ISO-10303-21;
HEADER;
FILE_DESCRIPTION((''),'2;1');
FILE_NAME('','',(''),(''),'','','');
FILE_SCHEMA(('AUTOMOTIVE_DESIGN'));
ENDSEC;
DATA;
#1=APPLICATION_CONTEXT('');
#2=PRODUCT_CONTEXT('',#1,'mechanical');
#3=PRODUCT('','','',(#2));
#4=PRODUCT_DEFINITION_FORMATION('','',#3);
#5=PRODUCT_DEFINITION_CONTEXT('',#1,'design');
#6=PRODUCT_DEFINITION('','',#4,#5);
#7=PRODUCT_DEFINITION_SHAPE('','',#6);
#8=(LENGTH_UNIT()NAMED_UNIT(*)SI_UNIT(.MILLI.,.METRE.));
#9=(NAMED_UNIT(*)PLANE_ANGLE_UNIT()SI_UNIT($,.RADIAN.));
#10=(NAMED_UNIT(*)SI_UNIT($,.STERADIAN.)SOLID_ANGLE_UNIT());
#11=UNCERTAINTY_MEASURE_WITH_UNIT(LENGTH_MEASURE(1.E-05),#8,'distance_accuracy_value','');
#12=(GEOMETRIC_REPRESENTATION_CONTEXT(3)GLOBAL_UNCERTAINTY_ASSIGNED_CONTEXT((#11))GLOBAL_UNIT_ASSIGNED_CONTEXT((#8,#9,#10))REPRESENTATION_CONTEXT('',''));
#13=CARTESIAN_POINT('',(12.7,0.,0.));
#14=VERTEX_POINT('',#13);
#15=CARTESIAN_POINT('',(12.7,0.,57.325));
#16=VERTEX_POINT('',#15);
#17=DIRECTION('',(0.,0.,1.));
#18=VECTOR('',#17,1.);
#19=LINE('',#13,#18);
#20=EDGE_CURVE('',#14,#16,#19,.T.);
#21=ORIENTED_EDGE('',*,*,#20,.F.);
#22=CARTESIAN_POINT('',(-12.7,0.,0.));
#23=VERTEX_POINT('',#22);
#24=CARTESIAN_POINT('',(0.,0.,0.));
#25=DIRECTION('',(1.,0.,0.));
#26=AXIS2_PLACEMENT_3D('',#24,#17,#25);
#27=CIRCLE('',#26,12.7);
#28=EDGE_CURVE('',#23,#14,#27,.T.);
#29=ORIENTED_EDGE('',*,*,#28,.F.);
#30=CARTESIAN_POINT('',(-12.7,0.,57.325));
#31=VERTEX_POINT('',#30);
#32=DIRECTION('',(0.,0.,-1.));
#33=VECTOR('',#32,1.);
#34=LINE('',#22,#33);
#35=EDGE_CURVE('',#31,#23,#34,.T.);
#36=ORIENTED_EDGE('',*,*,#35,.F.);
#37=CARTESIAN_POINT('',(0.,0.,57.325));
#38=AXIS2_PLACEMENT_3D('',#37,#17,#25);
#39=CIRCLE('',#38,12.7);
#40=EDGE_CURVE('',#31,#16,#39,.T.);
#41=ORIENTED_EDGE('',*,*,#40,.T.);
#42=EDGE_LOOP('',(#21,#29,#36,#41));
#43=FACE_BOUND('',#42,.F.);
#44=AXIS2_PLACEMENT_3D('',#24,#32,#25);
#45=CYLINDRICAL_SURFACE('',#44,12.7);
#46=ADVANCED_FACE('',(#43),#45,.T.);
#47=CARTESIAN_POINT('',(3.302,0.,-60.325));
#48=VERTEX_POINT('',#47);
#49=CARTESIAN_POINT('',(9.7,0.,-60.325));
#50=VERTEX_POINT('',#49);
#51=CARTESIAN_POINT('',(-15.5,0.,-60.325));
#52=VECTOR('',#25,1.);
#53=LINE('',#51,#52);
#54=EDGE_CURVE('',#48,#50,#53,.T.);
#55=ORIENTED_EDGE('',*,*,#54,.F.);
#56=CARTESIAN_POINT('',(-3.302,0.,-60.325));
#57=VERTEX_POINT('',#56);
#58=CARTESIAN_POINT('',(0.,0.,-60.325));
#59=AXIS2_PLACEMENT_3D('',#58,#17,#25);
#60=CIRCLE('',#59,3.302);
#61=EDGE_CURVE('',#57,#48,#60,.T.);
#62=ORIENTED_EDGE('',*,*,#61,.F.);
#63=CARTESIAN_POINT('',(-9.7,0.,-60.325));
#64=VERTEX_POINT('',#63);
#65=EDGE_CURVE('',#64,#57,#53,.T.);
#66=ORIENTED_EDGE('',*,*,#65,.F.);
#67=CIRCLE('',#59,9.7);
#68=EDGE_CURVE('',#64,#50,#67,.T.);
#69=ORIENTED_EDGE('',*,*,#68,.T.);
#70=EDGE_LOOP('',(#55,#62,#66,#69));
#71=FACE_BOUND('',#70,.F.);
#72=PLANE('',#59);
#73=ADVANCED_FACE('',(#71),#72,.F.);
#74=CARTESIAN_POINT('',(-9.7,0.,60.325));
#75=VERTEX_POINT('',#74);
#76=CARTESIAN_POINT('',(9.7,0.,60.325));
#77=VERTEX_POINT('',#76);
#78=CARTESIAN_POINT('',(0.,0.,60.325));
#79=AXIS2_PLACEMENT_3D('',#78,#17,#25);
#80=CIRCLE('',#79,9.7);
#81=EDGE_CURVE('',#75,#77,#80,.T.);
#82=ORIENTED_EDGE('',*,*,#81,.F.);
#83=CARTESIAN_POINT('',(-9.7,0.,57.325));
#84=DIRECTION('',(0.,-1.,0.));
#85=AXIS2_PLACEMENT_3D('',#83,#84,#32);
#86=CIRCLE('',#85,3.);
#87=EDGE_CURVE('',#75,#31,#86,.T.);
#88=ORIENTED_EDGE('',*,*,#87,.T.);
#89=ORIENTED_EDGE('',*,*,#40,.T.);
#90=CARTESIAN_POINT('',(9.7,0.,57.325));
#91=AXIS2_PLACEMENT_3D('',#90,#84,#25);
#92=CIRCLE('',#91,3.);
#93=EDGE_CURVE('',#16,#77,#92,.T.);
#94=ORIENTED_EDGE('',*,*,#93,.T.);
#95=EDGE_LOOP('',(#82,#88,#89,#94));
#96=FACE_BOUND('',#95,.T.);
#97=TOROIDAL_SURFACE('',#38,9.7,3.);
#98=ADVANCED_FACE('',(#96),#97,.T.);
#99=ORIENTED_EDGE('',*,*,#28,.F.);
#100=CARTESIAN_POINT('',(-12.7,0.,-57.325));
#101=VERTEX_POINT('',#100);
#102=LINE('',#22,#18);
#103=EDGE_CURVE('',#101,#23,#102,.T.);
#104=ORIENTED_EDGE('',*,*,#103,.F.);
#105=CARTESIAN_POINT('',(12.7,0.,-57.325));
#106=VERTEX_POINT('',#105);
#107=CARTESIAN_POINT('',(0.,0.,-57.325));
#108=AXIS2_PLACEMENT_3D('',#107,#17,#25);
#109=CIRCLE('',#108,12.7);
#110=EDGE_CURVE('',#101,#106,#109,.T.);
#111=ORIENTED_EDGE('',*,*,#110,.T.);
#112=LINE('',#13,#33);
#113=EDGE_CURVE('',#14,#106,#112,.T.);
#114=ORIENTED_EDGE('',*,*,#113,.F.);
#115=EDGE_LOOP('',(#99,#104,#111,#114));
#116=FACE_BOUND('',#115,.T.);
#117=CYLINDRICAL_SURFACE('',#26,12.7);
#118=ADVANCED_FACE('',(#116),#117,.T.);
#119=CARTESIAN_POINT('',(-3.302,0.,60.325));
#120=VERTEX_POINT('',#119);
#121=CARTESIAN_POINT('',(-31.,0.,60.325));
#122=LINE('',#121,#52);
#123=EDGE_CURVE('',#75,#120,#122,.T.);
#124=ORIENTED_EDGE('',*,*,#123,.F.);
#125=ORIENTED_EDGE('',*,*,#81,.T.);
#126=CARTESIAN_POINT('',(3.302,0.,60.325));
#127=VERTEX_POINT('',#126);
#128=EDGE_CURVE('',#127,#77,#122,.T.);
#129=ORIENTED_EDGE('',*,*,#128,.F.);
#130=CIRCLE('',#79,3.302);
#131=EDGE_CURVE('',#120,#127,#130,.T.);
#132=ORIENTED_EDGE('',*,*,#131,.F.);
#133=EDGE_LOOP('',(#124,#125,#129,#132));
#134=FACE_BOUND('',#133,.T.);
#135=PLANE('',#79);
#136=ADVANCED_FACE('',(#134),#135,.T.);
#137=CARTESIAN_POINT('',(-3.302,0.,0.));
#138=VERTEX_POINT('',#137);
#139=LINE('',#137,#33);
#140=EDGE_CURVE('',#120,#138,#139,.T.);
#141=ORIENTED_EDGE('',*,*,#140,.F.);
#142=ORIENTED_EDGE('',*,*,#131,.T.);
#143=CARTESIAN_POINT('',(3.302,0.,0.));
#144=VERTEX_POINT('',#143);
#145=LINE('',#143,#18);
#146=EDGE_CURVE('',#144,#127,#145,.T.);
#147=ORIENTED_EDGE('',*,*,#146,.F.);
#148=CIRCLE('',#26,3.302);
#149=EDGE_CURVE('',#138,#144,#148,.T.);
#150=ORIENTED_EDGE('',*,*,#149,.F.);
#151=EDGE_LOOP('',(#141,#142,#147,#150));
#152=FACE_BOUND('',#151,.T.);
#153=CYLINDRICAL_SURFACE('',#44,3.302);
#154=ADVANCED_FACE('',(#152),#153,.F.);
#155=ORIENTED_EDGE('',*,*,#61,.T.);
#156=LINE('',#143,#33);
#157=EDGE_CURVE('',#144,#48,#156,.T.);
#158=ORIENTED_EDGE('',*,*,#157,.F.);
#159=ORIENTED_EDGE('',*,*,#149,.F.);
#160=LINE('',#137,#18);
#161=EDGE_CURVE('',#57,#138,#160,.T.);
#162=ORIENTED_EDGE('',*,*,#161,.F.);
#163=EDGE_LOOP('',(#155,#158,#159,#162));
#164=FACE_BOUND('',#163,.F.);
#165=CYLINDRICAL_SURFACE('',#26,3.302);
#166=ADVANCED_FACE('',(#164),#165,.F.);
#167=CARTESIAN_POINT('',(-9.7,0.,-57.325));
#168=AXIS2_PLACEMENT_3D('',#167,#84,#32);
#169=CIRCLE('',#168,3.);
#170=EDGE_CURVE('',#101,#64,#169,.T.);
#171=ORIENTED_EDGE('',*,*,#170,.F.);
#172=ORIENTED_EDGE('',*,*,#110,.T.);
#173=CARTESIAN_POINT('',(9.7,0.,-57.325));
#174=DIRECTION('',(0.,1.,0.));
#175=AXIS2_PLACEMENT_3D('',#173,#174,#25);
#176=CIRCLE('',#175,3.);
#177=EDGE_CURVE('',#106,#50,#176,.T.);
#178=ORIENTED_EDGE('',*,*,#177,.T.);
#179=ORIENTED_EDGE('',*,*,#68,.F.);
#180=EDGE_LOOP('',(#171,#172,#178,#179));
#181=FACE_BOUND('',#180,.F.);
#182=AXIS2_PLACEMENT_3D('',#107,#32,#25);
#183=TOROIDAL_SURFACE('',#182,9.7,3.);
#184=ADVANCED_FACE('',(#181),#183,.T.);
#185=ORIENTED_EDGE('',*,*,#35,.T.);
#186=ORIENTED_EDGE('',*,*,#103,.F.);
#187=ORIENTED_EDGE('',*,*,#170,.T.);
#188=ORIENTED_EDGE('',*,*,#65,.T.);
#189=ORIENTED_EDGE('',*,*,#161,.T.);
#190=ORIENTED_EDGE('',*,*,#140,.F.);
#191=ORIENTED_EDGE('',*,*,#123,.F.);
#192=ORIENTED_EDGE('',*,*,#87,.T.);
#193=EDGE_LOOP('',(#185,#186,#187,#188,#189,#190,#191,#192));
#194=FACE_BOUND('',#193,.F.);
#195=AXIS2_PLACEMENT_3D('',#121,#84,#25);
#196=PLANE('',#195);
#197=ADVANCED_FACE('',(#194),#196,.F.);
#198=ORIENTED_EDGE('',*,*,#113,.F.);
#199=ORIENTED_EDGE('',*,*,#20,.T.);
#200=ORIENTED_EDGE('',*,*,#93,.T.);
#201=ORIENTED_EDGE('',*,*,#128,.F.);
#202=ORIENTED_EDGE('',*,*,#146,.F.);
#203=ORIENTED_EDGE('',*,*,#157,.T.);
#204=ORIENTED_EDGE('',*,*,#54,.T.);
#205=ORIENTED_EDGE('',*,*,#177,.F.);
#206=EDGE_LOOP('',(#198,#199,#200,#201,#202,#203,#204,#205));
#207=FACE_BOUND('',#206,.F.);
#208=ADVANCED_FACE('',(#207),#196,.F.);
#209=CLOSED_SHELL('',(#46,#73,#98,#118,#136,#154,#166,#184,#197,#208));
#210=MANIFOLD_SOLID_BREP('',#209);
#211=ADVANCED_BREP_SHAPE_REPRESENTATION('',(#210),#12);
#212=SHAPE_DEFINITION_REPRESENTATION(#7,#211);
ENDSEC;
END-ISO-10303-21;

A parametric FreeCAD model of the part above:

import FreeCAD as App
import Part
import Sketcher
Q = App.Units.Quantity


def edges_at(feature, points):
    """Names of the edges that pass closest to the given points."""
    edges = feature.Shape.Edges
    near = lambda p: min(range(len(edges)), key=lambda i: edges[i].distToShape(Part.Vertex(*p))[0])
    return sorted({f"Edge{near(p) + 1}" for p in points})


def add_polygon(sketch, points):
    """Adds a closed chain of lines whose ends are joined by coincident constraints."""
    first, n = sketch.GeometryCount, len(points)
    for a, b in zip(points, points[1:] + points[:1]):
        sketch.addGeometry(Part.LineSegment(App.Vector(*a, 0), App.Vector(*b, 0)), False)
    for i in range(n):
        sketch.addConstraint(Sketcher.Constraint("Coincident", first + i, 2, first + (i + 1) % n, 1))

doc = App.newDocument("Part")
body = doc.addObject("PartDesign::Body", "Body")

# Sketch on XY plane
sketch1 = doc.addObject("Sketcher::SketchObject", "Sketch")
body.addObject(sketch1)
sketch1.AttachmentSupport = (doc.XY_Plane, [""])
sketch1.MapMode = "FlatFace"
sketch1.addGeometry(Part.Circle(App.Vector(0, 0, 0), App.Vector(0, 0, 1), 12.7), False)
sketch1.addGeometry(Part.Circle(App.Vector(0, 0, 0), App.Vector(0, 0, 1), 3.3), False)
sketch1.addConstraint(Sketcher.Constraint("Coincident", 0, 3, -1, 1))
sketch1.addConstraint(Sketcher.Constraint("Coincident", 1, 3, -1, 1))
sketch1.addConstraint(Sketcher.Constraint("Diameter", 0, Q("1 in")))
sketch1.addConstraint(Sketcher.Constraint("Diameter", 1, Q("0.26 in")))
pad1 = doc.addObject("PartDesign::Pad", "Pad")
body.addObject(pad1)
pad1.Profile = sketch1
pad1.Length = Q("4.75 in")
pad1.Midplane = True
doc.recompute()

fillet = doc.addObject("PartDesign::Fillet", "Fillet")
body.addObject(fillet)
fillet.Base = (pad1, edges_at(pad1, [(-12.7, 0, 60.325), (-12.7, 0, -60.325)]))
fillet.Radius = Q("0.1181102 in")

# Sketch on XY plane
sketch2 = doc.addObject("Sketcher::SketchObject", "Sketch001")
body.addObject(sketch2)
sketch2.AttachmentSupport = (doc.XY_Plane, [""])
sketch2.MapMode = "FlatFace"
sketch2.AttachmentOffset = App.Placement(App.Vector(0, 0, 2.375 * 25.4), App.Rotation())
add_polygon(sketch2, [(-16, 29), (-31, 0), (39, 0), (17, 30)])  # lines 0-3
sketch2.addConstraint(Sketcher.Constraint("Horizontal", 1))
sketch2.addConstraint(Sketcher.Constraint("PointOnObject", 0, 2, -1))
sketch2.addConstraint(Sketcher.Constraint("Angle", 0, Q("-117.3499 deg")))
sketch2.addConstraint(Sketcher.Constraint("DistanceX", 1, 1, 1, 2, Q("2.7559 in")))
sketch2.addConstraint(Sketcher.Constraint("Distance", 3, Q("1.2998 in")))
sketch2.addConstraint(Sketcher.Constraint("DistanceX", -1, 1, 2, 2, Q("0.6693 in")))
sketch2.addConstraint(Sketcher.Constraint("DistanceY", -1, 1, 2, 2, Q("1.1811 in")))
sketch2.addConstraint(Sketcher.Constraint("Distance", 0, Q("32.6497 mm")))
pocket1 = doc.addObject("PartDesign::Pocket", "Pocket")
body.addObject(pocket1)
pocket1.Profile = sketch2
pocket1.Type = "ThroughAll"

doc.recompute()
